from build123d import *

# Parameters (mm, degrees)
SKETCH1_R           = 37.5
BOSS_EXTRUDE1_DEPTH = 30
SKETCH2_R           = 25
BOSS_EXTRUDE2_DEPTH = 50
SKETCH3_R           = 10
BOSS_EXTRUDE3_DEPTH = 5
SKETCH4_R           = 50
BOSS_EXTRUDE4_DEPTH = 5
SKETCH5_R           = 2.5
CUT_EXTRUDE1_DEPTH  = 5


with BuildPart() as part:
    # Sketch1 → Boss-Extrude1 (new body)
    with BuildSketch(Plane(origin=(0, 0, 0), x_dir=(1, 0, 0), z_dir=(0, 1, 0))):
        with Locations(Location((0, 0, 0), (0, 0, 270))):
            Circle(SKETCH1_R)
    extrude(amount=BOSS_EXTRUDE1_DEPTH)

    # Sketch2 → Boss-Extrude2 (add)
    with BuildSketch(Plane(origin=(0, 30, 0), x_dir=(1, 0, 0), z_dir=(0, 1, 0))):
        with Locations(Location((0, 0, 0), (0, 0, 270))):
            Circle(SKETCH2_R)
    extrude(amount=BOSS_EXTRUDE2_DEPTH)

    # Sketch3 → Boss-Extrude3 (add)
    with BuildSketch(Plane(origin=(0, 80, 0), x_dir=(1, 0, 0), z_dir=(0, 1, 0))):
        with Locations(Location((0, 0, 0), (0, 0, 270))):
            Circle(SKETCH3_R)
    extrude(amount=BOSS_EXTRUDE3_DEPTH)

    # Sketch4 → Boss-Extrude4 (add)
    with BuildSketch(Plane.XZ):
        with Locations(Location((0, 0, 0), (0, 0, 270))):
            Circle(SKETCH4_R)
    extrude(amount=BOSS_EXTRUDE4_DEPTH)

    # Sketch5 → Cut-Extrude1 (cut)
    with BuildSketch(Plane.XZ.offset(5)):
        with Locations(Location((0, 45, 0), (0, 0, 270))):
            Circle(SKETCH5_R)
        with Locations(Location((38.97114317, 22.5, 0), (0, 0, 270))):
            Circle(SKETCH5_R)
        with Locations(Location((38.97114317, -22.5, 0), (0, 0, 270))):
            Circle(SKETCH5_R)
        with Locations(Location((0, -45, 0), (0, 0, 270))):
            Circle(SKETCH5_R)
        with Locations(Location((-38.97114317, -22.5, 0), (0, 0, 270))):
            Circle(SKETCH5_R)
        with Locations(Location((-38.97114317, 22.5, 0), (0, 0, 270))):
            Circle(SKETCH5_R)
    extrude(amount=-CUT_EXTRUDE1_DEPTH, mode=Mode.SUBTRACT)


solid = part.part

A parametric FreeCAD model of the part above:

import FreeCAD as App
import Part
import Sketcher

doc = App.newDocument("Part")
body = doc.addObject("PartDesign::Body", "Body")

# Sketch on XZ plane
sketch1 = body.newObject("Sketcher::SketchObject", "Sketch")
sketch1.AttachmentSupport = (doc.getObject("XZ_Plane"), [""])
sketch1.MapMode = "FlatFace"
sketch1.addGeometry(Part.Circle(App.Vector(0, 0, 0), App.Vector(0, 0, 1), 38), False)
sketch1.addConstraint([
    Sketcher.Constraint("Coincident", 0, 3, -1, 1),
    Sketcher.Constraint("Diameter", 0, 75.0),
])
pad1 = body.newObject("PartDesign::Pad", "Pad")
pad1.Profile = sketch1
pad1.Length = 30
pad1.Reversed = True

# Sketch on XZ plane
sketch2 = body.newObject("Sketcher::SketchObject", "Sketch001")
sketch2.AttachmentSupport = (doc.getObject("XZ_Plane"), [""])
sketch2.MapMode = "FlatFace"
sketch2.AttachmentOffset = App.Placement(App.Vector(0, 0, -30), App.Rotation())
sketch2.addGeometry(Part.Circle(App.Vector(0, 0, 0), App.Vector(0, 0, 1), 25), False)
sketch2.addConstraint([
    Sketcher.Constraint("Coincident", 0, 3, -1, 1),
    Sketcher.Constraint("Diameter", 0, 50.0),
])
pad2 = body.newObject("PartDesign::Pad", "Pad001")
pad2.Profile = sketch2
pad2.Length = 50
pad2.Reversed = True

# Sketch on XZ plane
sketch3 = body.newObject("Sketcher::SketchObject", "Sketch002")
sketch3.AttachmentSupport = (doc.getObject("XZ_Plane"), [""])
sketch3.MapMode = "FlatFace"
sketch3.AttachmentOffset = App.Placement(App.Vector(0, 0, -80), App.Rotation())
sketch3.addGeometry(Part.Circle(App.Vector(0, 0, 0), App.Vector(0, 0, 1), 10), False)
sketch3.addConstraint([
    Sketcher.Constraint("Coincident", 0, 3, -1, 1),
    Sketcher.Constraint("Diameter", 0, 20.0),
])
pad3 = body.newObject("PartDesign::Pad", "Pad002")
pad3.Profile = sketch3
pad3.Length = 5
pad3.Reversed = True

# Sketch on XZ plane
sketch4 = body.newObject("Sketcher::SketchObject", "Sketch003")
sketch4.AttachmentSupport = (doc.getObject("XZ_Plane"), [""])
sketch4.MapMode = "FlatFace"
sketch4.addGeometry(Part.Circle(App.Vector(0, 0, 0), App.Vector(0, 0, 1), 50), False)
sketch4.addConstraint([
    Sketcher.Constraint("Coincident", 0, 3, -1, 1),
    Sketcher.Constraint("Diameter", 0, 100.0),
])
pad4 = body.newObject("PartDesign::Pad", "Pad003")
pad4.Profile = sketch4
pad4.Length = 5

# Sketch on XZ plane
sketch5 = body.newObject("Sketcher::SketchObject", "Sketch004")
sketch5.AttachmentSupport = (doc.getObject("XZ_Plane"), [""])
sketch5.MapMode = "FlatFace"
sketch5.AttachmentOffset = App.Placement(App.Vector(0, 0, 5), App.Rotation())
sketch5.addGeometry([
    Part.Circle(App.Vector(0, 45, 0), App.Vector(0, 0, 1), 2.5),  # 0
    Part.Circle(App.Vector(39, 22.5, 0), App.Vector(0, 0, 1), 2.5),  # 1
    Part.Circle(App.Vector(39, -22.5, 0), App.Vector(0, 0, 1), 2.5),  # 2
    Part.Circle(App.Vector(0, -45, 0), App.Vector(0, 0, 1), 2.5),  # 3
    Part.Circle(App.Vector(-39, -22.5, 0), App.Vector(0, 0, 1), 2.5),  # 4
    Part.Circle(App.Vector(-39, 22.5, 0), App.Vector(0, 0, 1), 2.5),  # 5
], False)
sketch5.addConstraint([
    Sketcher.Constraint("Equal", 0, 1),
    Sketcher.Constraint("Equal", 1, 2),
    Sketcher.Constraint("Equal", 2, 3),
    Sketcher.Constraint("Equal", 3, 4),
    Sketcher.Constraint("Equal", 4, 5),
    Sketcher.Constraint("Symmetric", 0, 3, 3, 3, -1, 1),
    Sketcher.Constraint("Symmetric", 1, 3, 4, 3, -1, 1),
    Sketcher.Constraint("Symmetric", 2, 3, 5, 3, -1, 1),
    Sketcher.Constraint("Symmetric", 2, 3, 4, 3, -2),
    Sketcher.Constraint("PointOnObject", 0, 3, -2),
    Sketcher.Constraint("Diameter", 0, 5.0),
    Sketcher.Constraint("DistanceY", -1, 1, 0, 3, 45.0),
    Sketcher.Constraint("DistanceY", 2, 3, 1, 3, 45.0),
    Sketcher.Constraint("DistanceX", -1, 1, 1, 3, 38.971143),
])
pocket1 = body.newObject("PartDesign::Pocket", "Pocket")
pocket1.Profile = sketch5
pocket1.Length = 5

doc.recompute()
